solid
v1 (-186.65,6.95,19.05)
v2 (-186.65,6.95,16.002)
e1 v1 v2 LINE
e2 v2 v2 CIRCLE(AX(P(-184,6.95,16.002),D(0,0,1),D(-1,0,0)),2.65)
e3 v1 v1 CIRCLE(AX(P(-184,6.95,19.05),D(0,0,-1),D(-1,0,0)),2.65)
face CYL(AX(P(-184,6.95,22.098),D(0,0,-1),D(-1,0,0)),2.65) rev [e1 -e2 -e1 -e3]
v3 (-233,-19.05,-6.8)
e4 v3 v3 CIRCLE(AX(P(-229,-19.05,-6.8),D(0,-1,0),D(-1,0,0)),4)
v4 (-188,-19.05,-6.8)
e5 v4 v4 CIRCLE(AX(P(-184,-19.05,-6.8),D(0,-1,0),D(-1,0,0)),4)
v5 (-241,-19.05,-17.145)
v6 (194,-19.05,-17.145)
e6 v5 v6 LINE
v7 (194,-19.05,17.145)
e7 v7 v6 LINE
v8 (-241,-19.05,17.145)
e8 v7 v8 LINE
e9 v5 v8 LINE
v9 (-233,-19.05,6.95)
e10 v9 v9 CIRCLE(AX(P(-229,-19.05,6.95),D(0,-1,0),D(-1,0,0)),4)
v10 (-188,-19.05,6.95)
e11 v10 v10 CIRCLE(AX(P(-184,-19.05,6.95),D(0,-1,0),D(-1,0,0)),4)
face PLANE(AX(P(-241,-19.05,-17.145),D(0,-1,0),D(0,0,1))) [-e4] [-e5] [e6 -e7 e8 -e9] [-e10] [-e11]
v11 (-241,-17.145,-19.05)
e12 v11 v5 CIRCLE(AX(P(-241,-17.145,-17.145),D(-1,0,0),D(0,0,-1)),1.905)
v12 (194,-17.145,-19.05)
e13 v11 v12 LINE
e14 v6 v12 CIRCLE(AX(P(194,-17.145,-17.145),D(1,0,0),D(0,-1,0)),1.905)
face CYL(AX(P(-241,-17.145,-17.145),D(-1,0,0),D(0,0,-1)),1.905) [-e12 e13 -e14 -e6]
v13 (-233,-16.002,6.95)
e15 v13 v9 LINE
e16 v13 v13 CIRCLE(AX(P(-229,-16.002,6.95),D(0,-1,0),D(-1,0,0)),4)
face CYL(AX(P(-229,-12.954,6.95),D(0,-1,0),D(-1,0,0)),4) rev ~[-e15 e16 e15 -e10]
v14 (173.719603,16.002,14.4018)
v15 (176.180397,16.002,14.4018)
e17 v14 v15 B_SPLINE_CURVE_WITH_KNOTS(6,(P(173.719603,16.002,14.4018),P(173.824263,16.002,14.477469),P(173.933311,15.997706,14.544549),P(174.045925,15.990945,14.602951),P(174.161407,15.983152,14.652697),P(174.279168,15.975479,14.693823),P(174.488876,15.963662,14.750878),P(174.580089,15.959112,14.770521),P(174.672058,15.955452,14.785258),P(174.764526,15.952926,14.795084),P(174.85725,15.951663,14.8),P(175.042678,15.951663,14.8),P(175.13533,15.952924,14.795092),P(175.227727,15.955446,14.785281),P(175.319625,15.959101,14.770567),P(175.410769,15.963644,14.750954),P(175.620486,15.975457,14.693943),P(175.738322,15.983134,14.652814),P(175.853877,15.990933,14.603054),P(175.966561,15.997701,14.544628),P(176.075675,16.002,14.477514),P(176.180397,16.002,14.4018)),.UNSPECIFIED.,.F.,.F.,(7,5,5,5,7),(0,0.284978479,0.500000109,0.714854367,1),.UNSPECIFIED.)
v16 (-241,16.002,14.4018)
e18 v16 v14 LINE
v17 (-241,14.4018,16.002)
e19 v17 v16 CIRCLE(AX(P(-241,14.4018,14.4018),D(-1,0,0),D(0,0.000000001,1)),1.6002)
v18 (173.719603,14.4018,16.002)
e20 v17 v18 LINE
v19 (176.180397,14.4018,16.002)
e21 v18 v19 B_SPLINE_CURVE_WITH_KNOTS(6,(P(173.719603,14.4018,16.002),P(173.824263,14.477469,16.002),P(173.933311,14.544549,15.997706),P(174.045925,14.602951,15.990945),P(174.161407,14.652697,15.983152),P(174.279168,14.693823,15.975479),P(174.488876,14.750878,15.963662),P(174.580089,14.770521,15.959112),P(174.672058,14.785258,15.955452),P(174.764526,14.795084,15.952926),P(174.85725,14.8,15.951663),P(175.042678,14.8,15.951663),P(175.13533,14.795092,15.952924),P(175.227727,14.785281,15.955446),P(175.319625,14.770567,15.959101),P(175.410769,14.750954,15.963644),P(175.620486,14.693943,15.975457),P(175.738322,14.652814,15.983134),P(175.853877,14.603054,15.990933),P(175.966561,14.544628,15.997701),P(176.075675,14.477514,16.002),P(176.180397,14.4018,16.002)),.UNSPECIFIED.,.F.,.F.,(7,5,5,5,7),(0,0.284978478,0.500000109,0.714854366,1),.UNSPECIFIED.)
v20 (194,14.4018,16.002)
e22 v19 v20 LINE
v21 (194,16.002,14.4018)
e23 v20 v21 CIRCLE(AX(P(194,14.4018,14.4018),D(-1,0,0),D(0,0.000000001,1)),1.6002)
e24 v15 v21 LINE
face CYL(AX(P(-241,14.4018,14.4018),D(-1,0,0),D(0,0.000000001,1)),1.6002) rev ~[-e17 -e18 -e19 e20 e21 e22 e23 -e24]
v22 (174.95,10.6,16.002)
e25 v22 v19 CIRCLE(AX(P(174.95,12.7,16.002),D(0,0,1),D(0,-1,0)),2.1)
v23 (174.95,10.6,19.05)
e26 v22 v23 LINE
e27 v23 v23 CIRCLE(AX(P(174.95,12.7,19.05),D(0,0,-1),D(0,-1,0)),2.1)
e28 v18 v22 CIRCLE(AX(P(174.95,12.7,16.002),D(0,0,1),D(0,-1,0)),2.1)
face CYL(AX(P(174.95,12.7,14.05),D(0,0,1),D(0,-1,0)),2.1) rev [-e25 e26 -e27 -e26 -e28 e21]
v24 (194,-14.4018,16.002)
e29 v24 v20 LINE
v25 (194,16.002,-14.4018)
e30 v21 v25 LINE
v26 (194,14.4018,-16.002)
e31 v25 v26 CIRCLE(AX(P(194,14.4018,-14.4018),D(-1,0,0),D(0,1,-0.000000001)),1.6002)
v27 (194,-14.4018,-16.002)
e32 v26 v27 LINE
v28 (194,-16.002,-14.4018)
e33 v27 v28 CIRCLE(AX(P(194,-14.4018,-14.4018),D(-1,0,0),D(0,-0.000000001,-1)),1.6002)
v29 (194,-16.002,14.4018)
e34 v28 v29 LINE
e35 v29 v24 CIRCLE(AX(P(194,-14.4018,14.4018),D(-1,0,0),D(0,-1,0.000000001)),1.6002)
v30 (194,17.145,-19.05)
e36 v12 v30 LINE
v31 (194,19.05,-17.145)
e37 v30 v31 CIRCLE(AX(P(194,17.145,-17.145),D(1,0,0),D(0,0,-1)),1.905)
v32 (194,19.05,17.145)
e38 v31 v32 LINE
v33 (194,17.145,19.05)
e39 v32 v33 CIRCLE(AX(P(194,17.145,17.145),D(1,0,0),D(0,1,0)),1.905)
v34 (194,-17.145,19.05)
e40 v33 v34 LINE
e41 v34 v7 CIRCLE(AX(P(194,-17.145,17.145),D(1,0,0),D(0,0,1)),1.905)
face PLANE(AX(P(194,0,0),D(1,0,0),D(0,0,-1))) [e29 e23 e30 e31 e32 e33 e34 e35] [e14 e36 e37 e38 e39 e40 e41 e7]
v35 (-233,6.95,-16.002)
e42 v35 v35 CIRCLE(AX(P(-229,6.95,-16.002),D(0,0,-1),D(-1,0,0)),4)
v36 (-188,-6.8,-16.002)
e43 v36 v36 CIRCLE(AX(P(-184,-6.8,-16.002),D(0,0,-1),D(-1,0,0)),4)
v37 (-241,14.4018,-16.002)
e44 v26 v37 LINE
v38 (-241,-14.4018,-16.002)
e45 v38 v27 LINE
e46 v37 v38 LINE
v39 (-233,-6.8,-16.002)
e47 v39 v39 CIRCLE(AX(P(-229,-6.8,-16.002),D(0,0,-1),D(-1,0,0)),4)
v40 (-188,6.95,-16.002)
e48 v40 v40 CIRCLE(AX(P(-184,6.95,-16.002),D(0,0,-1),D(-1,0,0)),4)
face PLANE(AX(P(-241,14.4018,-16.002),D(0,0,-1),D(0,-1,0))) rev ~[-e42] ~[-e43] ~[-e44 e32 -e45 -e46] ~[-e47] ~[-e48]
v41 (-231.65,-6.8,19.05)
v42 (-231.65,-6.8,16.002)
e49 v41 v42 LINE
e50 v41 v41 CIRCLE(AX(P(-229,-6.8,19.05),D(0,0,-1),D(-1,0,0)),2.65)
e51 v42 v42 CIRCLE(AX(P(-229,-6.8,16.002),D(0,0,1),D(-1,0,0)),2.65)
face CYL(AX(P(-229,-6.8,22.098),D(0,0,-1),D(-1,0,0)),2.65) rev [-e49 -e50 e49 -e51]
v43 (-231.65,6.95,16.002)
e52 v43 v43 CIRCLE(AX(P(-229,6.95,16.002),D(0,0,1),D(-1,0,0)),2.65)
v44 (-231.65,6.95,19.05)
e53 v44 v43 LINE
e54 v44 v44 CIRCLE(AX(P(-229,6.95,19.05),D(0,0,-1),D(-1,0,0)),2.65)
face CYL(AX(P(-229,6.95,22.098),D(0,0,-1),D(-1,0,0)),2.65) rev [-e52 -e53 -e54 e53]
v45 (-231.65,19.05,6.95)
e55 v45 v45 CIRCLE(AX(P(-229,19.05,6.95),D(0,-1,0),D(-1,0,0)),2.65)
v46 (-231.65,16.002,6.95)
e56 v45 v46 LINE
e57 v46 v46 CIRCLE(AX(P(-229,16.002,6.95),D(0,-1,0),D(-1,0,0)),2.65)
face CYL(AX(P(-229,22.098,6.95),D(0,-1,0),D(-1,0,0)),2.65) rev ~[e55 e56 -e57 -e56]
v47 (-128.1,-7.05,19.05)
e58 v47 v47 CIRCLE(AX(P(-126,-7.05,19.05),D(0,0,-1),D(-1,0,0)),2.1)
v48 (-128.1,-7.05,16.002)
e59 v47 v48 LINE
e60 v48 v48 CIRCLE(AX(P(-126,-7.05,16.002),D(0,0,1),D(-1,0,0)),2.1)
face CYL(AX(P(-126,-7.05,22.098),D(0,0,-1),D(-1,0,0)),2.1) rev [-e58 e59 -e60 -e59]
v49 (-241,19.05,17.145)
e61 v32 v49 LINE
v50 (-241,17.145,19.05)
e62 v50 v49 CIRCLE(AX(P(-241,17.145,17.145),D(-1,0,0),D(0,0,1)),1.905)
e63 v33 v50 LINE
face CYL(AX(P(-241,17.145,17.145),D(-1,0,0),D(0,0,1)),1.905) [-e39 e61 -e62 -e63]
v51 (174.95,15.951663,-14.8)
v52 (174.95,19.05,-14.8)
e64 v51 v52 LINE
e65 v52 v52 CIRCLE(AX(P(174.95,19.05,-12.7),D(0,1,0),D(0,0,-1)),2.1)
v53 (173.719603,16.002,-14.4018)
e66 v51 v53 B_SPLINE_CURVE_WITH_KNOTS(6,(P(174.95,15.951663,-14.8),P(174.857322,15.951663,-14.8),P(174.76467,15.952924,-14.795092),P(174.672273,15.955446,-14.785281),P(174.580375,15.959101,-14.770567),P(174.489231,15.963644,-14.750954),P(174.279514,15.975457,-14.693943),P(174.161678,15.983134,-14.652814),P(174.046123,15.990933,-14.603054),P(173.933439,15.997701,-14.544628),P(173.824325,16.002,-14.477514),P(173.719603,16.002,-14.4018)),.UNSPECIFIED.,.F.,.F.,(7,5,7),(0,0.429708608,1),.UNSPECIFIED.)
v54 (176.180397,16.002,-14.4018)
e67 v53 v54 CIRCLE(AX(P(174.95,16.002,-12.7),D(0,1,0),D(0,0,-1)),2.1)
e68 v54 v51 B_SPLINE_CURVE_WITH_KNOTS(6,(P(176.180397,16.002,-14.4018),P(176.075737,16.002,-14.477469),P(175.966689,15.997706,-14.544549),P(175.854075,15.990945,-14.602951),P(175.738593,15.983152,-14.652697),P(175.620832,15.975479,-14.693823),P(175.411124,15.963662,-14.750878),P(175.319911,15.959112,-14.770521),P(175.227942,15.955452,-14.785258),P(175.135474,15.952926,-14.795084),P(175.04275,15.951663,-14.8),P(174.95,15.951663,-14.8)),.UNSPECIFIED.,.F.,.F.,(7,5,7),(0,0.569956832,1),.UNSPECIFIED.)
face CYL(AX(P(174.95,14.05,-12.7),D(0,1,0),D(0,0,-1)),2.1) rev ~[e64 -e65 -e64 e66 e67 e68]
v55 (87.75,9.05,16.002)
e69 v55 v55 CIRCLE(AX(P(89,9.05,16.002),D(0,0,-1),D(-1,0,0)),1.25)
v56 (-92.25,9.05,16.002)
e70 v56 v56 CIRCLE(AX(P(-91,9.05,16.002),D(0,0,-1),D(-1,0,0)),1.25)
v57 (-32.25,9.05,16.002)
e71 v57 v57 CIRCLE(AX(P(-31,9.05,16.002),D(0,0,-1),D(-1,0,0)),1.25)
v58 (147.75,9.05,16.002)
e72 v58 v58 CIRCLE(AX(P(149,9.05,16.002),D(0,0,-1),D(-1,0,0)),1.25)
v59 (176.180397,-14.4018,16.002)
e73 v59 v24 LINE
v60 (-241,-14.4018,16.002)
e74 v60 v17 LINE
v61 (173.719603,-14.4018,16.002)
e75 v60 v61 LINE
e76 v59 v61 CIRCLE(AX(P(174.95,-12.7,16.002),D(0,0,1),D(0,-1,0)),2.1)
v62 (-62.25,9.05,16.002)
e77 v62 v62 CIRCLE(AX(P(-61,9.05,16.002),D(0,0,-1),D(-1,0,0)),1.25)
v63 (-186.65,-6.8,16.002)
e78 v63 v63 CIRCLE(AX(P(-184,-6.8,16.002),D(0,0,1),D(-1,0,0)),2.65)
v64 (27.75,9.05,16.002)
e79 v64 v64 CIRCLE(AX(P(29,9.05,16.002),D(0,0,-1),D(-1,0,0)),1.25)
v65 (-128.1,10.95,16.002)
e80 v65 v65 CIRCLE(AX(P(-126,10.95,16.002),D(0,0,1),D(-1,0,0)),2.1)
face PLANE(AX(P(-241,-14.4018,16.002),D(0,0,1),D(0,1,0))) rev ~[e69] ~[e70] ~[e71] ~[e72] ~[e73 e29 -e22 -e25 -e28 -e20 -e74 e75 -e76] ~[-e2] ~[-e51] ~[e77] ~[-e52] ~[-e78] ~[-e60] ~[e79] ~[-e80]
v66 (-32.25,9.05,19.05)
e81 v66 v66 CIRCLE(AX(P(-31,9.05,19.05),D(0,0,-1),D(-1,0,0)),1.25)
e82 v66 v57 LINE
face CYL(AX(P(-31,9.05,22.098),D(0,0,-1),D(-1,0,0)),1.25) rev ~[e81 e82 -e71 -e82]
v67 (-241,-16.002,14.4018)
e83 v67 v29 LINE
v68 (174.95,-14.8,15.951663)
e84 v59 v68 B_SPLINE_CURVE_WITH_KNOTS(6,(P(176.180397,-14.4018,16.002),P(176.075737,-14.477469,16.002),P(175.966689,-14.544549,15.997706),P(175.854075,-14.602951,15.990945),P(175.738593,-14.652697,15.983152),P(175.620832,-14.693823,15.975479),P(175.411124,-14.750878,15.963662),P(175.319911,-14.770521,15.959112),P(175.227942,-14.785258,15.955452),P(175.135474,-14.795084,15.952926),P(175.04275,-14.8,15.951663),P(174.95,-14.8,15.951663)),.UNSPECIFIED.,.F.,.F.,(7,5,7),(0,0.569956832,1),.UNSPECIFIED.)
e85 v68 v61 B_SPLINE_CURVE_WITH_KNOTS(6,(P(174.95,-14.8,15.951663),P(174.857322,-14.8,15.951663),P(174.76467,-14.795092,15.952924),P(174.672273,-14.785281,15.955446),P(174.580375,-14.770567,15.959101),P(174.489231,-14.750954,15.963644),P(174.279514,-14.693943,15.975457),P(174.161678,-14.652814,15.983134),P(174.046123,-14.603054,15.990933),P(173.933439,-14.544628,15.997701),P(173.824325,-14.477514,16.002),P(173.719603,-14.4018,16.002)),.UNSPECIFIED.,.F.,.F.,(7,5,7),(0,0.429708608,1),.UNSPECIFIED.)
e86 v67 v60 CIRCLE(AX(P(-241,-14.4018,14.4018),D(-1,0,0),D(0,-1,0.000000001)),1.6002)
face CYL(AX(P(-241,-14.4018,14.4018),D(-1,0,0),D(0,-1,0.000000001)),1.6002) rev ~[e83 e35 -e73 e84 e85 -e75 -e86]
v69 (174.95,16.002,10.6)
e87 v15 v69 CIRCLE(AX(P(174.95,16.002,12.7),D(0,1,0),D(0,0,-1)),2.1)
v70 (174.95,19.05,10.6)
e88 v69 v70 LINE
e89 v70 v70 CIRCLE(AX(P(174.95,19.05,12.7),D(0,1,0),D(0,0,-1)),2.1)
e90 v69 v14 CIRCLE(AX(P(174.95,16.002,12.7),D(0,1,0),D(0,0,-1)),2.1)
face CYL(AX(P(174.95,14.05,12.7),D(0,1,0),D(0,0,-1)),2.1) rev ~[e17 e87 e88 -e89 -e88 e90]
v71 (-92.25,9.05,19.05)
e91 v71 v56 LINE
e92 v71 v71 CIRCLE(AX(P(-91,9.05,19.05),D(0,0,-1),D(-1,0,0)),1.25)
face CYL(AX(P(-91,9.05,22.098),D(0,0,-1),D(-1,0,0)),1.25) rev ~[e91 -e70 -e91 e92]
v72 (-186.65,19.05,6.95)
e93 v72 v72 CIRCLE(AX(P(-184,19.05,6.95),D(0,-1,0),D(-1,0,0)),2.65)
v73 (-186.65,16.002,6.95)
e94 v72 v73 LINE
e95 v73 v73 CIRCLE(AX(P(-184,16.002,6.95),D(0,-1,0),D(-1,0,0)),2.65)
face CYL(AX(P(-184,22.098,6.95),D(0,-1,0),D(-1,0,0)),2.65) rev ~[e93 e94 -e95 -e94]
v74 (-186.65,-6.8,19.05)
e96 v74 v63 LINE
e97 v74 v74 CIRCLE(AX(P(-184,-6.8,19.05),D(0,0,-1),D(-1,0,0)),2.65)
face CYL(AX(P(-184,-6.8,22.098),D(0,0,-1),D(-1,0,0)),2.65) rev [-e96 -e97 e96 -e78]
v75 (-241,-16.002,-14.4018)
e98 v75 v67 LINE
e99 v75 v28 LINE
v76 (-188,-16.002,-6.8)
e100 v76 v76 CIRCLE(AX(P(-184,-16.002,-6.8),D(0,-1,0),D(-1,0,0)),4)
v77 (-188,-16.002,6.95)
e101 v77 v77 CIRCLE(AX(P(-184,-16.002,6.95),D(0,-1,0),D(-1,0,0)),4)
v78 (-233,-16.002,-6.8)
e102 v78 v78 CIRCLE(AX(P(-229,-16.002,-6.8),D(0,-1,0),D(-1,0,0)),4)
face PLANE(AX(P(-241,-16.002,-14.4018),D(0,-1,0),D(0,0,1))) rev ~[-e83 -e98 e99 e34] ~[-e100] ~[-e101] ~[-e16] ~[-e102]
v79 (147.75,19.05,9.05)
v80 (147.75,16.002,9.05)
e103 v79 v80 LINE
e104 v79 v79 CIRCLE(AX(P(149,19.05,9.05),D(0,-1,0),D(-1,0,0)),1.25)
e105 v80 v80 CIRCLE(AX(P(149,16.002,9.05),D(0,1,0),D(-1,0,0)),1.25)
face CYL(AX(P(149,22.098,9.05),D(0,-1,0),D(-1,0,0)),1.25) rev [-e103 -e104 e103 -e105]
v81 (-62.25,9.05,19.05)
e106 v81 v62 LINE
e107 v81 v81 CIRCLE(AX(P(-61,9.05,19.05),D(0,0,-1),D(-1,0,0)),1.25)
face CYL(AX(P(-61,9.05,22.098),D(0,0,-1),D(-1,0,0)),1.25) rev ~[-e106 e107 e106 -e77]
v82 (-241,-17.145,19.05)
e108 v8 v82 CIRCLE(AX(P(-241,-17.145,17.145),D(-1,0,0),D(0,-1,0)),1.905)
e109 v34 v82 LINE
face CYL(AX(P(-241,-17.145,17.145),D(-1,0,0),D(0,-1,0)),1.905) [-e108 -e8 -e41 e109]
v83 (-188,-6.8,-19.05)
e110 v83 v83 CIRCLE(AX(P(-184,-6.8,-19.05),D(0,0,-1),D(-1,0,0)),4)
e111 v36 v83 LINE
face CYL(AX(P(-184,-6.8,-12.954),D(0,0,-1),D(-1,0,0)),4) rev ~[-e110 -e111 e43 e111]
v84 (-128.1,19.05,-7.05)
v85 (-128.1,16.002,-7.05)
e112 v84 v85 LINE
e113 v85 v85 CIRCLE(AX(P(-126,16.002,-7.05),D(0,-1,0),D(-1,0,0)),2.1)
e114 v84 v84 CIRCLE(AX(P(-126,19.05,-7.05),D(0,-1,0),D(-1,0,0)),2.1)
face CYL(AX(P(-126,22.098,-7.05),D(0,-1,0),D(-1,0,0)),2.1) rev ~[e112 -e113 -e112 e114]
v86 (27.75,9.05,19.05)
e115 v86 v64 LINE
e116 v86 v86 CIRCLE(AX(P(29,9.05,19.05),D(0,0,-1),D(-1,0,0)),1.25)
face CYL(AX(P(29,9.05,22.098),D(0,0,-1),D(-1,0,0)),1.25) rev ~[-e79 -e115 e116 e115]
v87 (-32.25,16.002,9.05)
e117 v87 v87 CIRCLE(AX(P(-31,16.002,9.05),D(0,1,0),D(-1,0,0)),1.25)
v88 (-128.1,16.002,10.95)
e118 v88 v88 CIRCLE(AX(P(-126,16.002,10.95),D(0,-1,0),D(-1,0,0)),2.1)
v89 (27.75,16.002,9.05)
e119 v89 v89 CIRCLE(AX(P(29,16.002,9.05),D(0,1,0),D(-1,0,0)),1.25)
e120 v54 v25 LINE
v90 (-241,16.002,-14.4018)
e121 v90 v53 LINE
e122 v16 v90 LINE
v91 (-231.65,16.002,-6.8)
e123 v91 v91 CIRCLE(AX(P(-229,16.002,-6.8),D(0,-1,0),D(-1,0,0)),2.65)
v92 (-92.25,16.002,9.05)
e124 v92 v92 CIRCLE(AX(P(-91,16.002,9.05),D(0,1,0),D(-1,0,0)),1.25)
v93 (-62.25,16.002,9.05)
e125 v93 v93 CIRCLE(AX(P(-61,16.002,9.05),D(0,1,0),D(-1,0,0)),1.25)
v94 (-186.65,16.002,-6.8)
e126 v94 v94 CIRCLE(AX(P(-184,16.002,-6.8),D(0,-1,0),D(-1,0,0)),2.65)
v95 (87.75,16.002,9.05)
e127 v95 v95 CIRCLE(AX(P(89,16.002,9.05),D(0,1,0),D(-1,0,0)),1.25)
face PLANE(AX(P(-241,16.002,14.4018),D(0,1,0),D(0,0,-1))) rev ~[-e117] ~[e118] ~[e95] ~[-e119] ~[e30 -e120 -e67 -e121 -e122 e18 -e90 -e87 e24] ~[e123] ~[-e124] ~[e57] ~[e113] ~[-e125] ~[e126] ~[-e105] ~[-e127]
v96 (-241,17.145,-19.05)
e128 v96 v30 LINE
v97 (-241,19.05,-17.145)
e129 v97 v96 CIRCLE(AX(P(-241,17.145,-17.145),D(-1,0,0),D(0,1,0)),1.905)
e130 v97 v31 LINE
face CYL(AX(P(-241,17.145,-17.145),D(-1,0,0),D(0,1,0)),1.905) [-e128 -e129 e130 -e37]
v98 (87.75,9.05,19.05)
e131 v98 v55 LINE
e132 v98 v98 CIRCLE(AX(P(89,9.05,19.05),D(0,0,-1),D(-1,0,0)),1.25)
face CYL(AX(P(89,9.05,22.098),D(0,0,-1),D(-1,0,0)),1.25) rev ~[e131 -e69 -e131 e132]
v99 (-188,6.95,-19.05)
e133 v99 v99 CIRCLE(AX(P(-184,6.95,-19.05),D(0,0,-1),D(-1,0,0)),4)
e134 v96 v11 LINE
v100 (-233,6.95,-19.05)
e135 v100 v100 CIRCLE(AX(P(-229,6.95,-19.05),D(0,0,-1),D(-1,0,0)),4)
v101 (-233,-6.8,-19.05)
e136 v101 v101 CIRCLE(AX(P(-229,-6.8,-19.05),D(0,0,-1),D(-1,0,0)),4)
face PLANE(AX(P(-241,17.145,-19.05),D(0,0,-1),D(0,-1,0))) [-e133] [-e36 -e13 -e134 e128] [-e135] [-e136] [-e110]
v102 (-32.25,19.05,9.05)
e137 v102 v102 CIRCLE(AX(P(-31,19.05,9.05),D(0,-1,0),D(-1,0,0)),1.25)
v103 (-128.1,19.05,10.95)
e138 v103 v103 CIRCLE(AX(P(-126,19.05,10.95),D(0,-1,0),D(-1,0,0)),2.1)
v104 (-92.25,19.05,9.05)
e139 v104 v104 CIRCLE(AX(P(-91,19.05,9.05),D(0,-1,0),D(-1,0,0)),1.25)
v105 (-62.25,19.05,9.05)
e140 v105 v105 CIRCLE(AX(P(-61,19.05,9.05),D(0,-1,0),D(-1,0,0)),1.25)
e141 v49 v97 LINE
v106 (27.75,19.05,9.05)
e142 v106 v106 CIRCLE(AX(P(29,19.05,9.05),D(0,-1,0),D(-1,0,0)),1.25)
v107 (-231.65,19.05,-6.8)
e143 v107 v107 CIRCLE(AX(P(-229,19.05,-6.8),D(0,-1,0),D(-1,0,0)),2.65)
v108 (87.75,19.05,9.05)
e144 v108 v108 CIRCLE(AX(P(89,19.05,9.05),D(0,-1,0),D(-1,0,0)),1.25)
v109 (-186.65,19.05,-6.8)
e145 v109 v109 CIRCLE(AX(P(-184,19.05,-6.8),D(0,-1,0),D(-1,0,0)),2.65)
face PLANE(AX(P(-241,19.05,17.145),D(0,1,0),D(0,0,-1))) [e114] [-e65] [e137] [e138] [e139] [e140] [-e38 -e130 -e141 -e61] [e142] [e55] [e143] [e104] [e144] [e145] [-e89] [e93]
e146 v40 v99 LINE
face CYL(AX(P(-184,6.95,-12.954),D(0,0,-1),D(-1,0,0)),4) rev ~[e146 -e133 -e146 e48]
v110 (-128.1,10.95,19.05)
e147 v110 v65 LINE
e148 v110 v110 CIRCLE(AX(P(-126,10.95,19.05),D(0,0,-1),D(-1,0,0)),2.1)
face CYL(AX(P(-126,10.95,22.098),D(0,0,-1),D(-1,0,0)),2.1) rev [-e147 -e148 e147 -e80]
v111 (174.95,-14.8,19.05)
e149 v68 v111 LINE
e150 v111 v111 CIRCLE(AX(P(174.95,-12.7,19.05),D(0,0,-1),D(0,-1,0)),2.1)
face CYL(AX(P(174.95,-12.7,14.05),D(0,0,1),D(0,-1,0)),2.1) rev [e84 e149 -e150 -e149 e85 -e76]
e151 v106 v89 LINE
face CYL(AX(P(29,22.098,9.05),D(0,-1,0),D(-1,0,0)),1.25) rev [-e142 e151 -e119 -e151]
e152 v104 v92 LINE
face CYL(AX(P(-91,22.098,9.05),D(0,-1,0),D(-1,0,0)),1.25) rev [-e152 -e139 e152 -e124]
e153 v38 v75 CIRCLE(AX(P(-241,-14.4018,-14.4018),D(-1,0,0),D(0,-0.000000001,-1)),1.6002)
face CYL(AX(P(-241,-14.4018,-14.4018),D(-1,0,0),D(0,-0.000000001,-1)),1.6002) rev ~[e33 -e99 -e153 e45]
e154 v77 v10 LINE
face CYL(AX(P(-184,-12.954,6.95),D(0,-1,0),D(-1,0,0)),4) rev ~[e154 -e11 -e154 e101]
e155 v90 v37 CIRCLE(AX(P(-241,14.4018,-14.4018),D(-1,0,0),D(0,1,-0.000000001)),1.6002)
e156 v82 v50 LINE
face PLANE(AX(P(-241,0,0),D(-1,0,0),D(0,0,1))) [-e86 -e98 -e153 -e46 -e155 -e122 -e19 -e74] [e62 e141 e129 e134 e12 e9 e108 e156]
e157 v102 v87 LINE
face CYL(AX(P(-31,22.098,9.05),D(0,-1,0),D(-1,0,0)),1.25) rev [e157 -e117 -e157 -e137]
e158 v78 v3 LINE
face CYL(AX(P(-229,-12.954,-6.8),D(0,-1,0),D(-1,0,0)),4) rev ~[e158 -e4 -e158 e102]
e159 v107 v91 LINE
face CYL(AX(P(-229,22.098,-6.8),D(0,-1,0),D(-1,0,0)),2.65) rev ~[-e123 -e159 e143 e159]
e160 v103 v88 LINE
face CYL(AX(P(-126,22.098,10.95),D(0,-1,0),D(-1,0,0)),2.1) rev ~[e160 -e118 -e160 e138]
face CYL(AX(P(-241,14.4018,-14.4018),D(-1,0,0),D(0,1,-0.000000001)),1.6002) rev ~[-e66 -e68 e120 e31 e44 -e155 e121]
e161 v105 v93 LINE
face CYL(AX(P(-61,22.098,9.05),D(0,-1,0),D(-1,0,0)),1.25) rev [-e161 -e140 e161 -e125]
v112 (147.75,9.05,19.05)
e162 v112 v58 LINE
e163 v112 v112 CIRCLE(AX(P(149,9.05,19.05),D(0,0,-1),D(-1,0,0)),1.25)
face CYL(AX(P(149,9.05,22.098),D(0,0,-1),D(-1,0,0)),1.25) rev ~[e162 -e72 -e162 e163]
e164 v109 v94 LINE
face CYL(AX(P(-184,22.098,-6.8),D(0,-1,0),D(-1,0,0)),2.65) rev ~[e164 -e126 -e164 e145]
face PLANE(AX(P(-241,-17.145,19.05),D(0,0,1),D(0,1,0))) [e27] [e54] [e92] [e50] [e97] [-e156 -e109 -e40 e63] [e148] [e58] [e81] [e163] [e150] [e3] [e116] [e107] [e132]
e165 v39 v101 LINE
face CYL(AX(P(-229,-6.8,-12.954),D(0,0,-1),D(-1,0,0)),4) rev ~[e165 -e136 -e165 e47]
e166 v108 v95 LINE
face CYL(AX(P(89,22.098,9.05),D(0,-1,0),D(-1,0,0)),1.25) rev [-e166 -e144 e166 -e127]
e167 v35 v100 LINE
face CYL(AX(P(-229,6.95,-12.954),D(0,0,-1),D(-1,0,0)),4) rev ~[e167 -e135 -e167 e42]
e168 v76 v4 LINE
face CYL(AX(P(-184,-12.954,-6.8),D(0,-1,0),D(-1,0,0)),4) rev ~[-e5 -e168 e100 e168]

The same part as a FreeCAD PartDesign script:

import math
import FreeCAD as App
import Part
import Sketcher
Q = App.Units.Quantity

doc = App.newDocument("Part")
params = doc.addObject("Spreadsheet::Sheet", "Params")
for row, (alias, value) in enumerate([
    ("sketch1_width", "34.29 mm"),
    ("pad1_length", "194 mm"),
    ("pad1_length2", "194 mm"),
    ("sketch2_diameter", "4.2 mm"),
    ("hole_diameter", "4.2 mm"),
    ("hole_depth", "3.048 mm"),
    ("sketch3_diameter", "2.5 mm"),
    ("hole2_diameter", "2.5 mm"),
    ("hole2_depth", "3.048 mm"),
    ("sketch4_height", "5 mm"),
    ("sketch4_width", "2.1 mm"),
    ("groove_angle", "360 deg"),
    ("linearpattern_pitch", "25.4 mm"),
    ("sketch5_width", "5 mm"),
    ("sketch5_height", "2.1 mm"),
    ("groove2_angle", "360 deg"),
    ("sketch6_width", "34.29 mm"),
    ("pad2_length", "40 mm"),
    ("sketch7_diameter", "5.3 mm"),
    ("hole3_diameter", "5.3 mm"),
    ("hole3_depth", "3.048 mm"),
    ("sketch8_width", "34.29 mm"),
    ("pad3_length", "7 mm"),
    ("sketch9_diameter", "8 mm"),
    ("hole4_diameter", "8 mm"),
    ("hole4_depth", "3.048 mm"),
    ("sketch10_diameter", "8 mm"),
    ("hole5_diameter", "8 mm"),
    ("hole5_depth", "3.048 mm"),
], start=1):
    params.set(f"A{row}", alias)
    params.set(f"B{row}", "=" + value)
    params.setAlias(f"B{row}", alias)

body = doc.addObject("PartDesign::Body", "Body")

# Sketch on YZ plane
sketch1 = body.newObject("Sketcher::SketchObject", "Sketch")
sketch1.AttachmentSupport = (doc.getObject("YZ_Plane"), [""])
sketch1.MapMode = "FlatFace"
sketch1.addGeometry([
    Part.LineSegment(App.Vector(-17.1, -19.1, 0), App.Vector(17.1, -19.1, 0)),  # 0
    Part.ArcOfCircle(Part.Circle(App.Vector(17.1, -17.1, 0), App.Vector(0, 0, 1), 1.9), math.radians(-90), math.radians(0)),  # 1
    Part.LineSegment(App.Vector(19.1, -17.1, 0), App.Vector(19.1, 17.1, 0)),  # 2
    Part.ArcOfCircle(Part.Circle(App.Vector(17.1, 17.1, 0), App.Vector(0, 0, 1), 1.9), math.radians(0), math.radians(90)),  # 3
    Part.LineSegment(App.Vector(17.1, 19.1, 0), App.Vector(-17.1, 19.1, 0)),  # 4
    Part.ArcOfCircle(Part.Circle(App.Vector(-17.1, 17.1, 0), App.Vector(0, 0, 1), 1.9), math.radians(90), math.radians(180)),  # 5
    Part.LineSegment(App.Vector(-19.1, 17.1, 0), App.Vector(-19.1, -17.1, 0)),  # 6
    Part.ArcOfCircle(Part.Circle(App.Vector(-17.1, -17.1, 0), App.Vector(0, 0, 1), 1.9), math.radians(-180), math.radians(-90)),  # 7
    Part.ArcOfCircle(Part.Circle(App.Vector(14.4, -14.4, 0), App.Vector(0, 0, 1), 1.6), math.radians(-90), math.radians(0)),  # 8
    Part.LineSegment(App.Vector(14.4, -16, 0), App.Vector(-14.4, -16, 0)),  # 9
    Part.ArcOfCircle(Part.Circle(App.Vector(-14.4, -14.4, 0), App.Vector(0, 0, 1), 1.6), math.radians(-180), math.radians(-90)),  # 10
    Part.LineSegment(App.Vector(-16, -14.4, 0), App.Vector(-16, 14.4, 0)),  # 11
    Part.ArcOfCircle(Part.Circle(App.Vector(-14.4, 14.4, 0), App.Vector(0, 0, 1), 1.6), math.radians(90), math.radians(180)),  # 12
    Part.LineSegment(App.Vector(-14.4, 16, 0), App.Vector(14.4, 16, 0)),  # 13
    Part.ArcOfCircle(Part.Circle(App.Vector(14.4, 14.4, 0), App.Vector(0, 0, 1), 1.6), math.radians(0), math.radians(90)),  # 14
    Part.LineSegment(App.Vector(16, 14.4, 0), App.Vector(16, -14.4, 0)),  # 15
], False)
sketch1.addConstraint([
    Sketcher.Constraint("Tangent", 0, 2, 1, 1),
    Sketcher.Constraint("Tangent", 1, 2, 2, 1),
    Sketcher.Constraint("Tangent", 2, 2, 3, 1),
    Sketcher.Constraint("Tangent", 3, 2, 4, 1),
    Sketcher.Constraint("Tangent", 4, 2, 5, 1),
    Sketcher.Constraint("Tangent", 5, 2, 6, 1),
    Sketcher.Constraint("Tangent", 6, 2, 7, 1),
    Sketcher.Constraint("Tangent", 7, 2, 0, 1),
    Sketcher.Constraint("Tangent", 8, 1, 9, 1),
    Sketcher.Constraint("Tangent", 9, 2, 10, 2),
    Sketcher.Constraint("Tangent", 10, 1, 11, 1),
    Sketcher.Constraint("Tangent", 11, 2, 12, 2),
    Sketcher.Constraint("Tangent", 12, 1, 13, 1),
    Sketcher.Constraint("Tangent", 13, 2, 14, 2),
    Sketcher.Constraint("Tangent", 14, 1, 15, 1),
    Sketcher.Constraint("Tangent", 15, 2, 8, 2),
    Sketcher.Constraint("Horizontal", 0),
    Sketcher.Constraint("Vertical", 2),
    Sketcher.Constraint("Horizontal", 4),
    Sketcher.Constraint("Vertical", 6),
    Sketcher.Constraint("Horizontal", 9),
    Sketcher.Constraint("Vertical", 11),
    Sketcher.Constraint("Horizontal", 13),
    Sketcher.Constraint("Vertical", 15),
    Sketcher.Constraint("Equal", 1, 3),
    Sketcher.Constraint("Equal", 3, 5),
    Sketcher.Constraint("Equal", 5, 7),
    Sketcher.Constraint("Equal", 8, 10),
    Sketcher.Constraint("Equal", 10, 12),
    Sketcher.Constraint("Equal", 12, 14),
    Sketcher.Constraint("Symmetric", 1, 3, 5, 3, -1, 1),
    Sketcher.Constraint("Symmetric", 8, 3, 12, 3, -1, 1),
    Sketcher.Constraint("Equal", 4, 2),
    Sketcher.Constraint("Equal", 13, 11),
    Sketcher.Constraint("Radius", 1, 1.905),
    Sketcher.Constraint("DistanceX", 0, 1, 0, 2, 34.29),
    Sketcher.Constraint("Radius", 8, 1.6002),
    Sketcher.Constraint("DistanceX", 9, 2, 9, 1, 28.8036),
])
sketch1.setExpression("Constraints[35]", "Params.sketch1_width")
pad1 = body.newObject("PartDesign::Pad", "Pad")
pad1.Profile = sketch1
pad1.Type = "TwoLengths"
pad1.setExpression("Length", "Params.pad1_length")
pad1.setExpression("Length2", "Params.pad1_length2")

# Sketch on XZ plane
sketch2 = body.newObject("Sketcher::SketchObject", "Sketch001")
sketch2.AttachmentSupport = (doc.getObject("XZ_Plane"), [""])
sketch2.MapMode = "FlatFace"
sketch2.AttachmentOffset = App.Placement(App.Vector(0, 0, -19.05), App.Rotation())
sketch2.addGeometry([
    Part.Circle(App.Vector(-126, -7, 0), App.Vector(0, 0, 1), 2.1),
    Part.Circle(App.Vector(-126, 10.9, 0), App.Vector(0, 0, 1), 2.1),
], False)
sketch2.addConstraint([
    Sketcher.Constraint("Equal", 0, 1),
    Sketcher.Constraint("Vertical", 0, 3, 1, 3),
    Sketcher.Constraint("Diameter", 0, 4.2),
    Sketcher.Constraint("DistanceX", 0, 3, -1, 1, 126.0),
    Sketcher.Constraint("DistanceY", 0, 3, 1, 3, 18.0),
    Sketcher.Constraint("DistanceY", 0, 3, -1, 1, 7.05),
])
sketch2.setExpression("Constraints[2]", "Params.sketch2_diameter")
doc.recompute()
hole = body.newObject("PartDesign::Hole", "Hole")
hole.Profile = sketch2
hole.ThreadType = "None"
hole.setExpression("Diameter", "Params.hole_diameter")
hole.DepthType = "Dimension"
hole.setExpression("Depth", "Params.hole_depth")
hole.DrillPoint = "Flat"
hole.Reversed = True

# Sketch on XY plane
sketch3 = body.newObject("Sketcher::SketchObject", "Sketch002")
sketch3.AttachmentSupport = (doc.getObject("XY_Plane"), [""])
sketch3.MapMode = "FlatFace"
sketch3.AttachmentOffset = App.Placement(App.Vector(0, 0, 19.05), App.Rotation())
sketch3.addGeometry([
    Part.Circle(App.Vector(149, 9.1, 0), App.Vector(0, 0, 1), 1.2),  # 0
    Part.Circle(App.Vector(89, 9.1, 0), App.Vector(0, 0, 1), 1.2),  # 1
    Part.Circle(App.Vector(29, 9.1, 0), App.Vector(0, 0, 1), 1.2),  # 2
    Part.Circle(App.Vector(-31, 9.1, 0), App.Vector(0, 0, 1), 1.2),  # 3
    Part.Circle(App.Vector(-91, 9.1, 0), App.Vector(0, 0, 1), 1.2),  # 4
    Part.Circle(App.Vector(-61, 9.1, 0), App.Vector(0, 0, 1), 1.2),  # 5
], False)
sketch3.addConstraint([
    Sketcher.Constraint("Equal", 0, 1),
    Sketcher.Constraint("Equal", 1, 2),
    Sketcher.Constraint("Equal", 2, 3),
    Sketcher.Constraint("Equal", 3, 4),
    Sketcher.Constraint("Equal", 4, 5),
    Sketcher.Constraint("Horizontal", 0, 3, 1, 3),
    Sketcher.Constraint("Horizontal", 1, 3, 2, 3),
    Sketcher.Constraint("Horizontal", 2, 3, 3, 3),
    Sketcher.Constraint("Horizontal", 3, 3, 4, 3),
    Sketcher.Constraint("Horizontal", 4, 3, 5, 3),
    Sketcher.Constraint("Diameter", 0, 2.5),
    Sketcher.Constraint("DistanceX", -1, 1, 0, 3, 149.0),
    Sketcher.Constraint("DistanceX", -1, 1, 1, 3, 89.0),
    Sketcher.Constraint("DistanceX", -1, 1, 2, 3, 29.0),
    Sketcher.Constraint("DistanceX", 3, 3, -1, 1, 31.0),
    Sketcher.Constraint("DistanceX", 4, 3, -1, 1, 91.0),
    Sketcher.Constraint("DistanceX", 5, 3, -1, 1, 61.0),
    Sketcher.Constraint("DistanceY", -1, 1, 0, 3, 9.05),
])
sketch3.setExpression("Constraints[10]", "Params.sketch3_diameter")
doc.recompute()
hole2 = body.newObject("PartDesign::Hole", "Hole001")
hole2.Profile = sketch3
hole2.ThreadType = "None"
hole2.setExpression("Diameter", "Params.hole2_diameter")
hole2.DepthType = "Dimension"
hole2.setExpression("Depth", "Params.hole2_depth")
hole2.DrillPoint = "Flat"

# Sketch on YZ plane
sketch4 = body.newObject("Sketcher::SketchObject", "Sketch003")
sketch4.AttachmentSupport = (doc.getObject("YZ_Plane"), [""])
sketch4.MapMode = "FlatFace"
sketch4.AttachmentOffset = App.Placement(App.Vector(0, 0, 174.95), App.Rotation())
sketch4.addGeometry([
    Part.LineSegment(App.Vector(12.7, 12.8, 0), App.Vector(12.7, 19.1, 0)),
    Part.LineSegment(App.Vector(12.7, 19.1, 0), App.Vector(10.6, 19.1, 0)),
    Part.LineSegment(App.Vector(10.6, 19.1, 0), App.Vector(10.6, 14.1, 0)),
    Part.LineSegment(App.Vector(10.6, 14.1, 0), App.Vector(12.7, 12.8, 0)),
], False)
sketch4.addGeometry(Part.LineSegment(App.Vector(12.7, 19.1, 0), App.Vector(12.7, 12.8, 0)), True)  # axis
sketch4.addConstraint([
    Sketcher.Constraint("Coincident", 0, 2, 1, 1),
    Sketcher.Constraint("Coincident", 1, 2, 2, 1),
    Sketcher.Constraint("Coincident", 2, 2, 3, 1),
    Sketcher.Constraint("Coincident", 3, 2, 0, 1),
    Sketcher.Constraint("Vertical", 0),
    Sketcher.Constraint("Horizontal", 1),
    Sketcher.Constraint("Vertical", 2),
    Sketcher.Constraint("Vertical", 4),
    Sketcher.Constraint("Coincident", 4, 1, 0, 2),
    Sketcher.Constraint("Equal", 0, 4),
    Sketcher.Constraint("DistanceY", 2, 2, 2, 1, 5.0),
    Sketcher.Constraint("Angle", 3, Q("-31 deg")),
    Sketcher.Constraint("DistanceX", 1, 2, 1, 1, 2.1),
    Sketcher.Constraint("DistanceX", -1, 1, 0, 2, 12.7),
    Sketcher.Constraint("DistanceY", -1, 1, 0, 2, 19.05),
])
sketch4.setExpression("Constraints[10]", "Params.sketch4_height")
sketch4.setExpression("Constraints[12]", "Params.sketch4_width")
groove = body.newObject("PartDesign::Groove", "Groove")
groove.Profile = sketch4
groove.ReferenceAxis = (sketch4, ["Axis0"])
groove.setExpression("Angle", "Params.groove_angle")
doc.recompute()

linearpattern = body.newObject("PartDesign::LinearPattern", "LinearPattern")
linearpattern.Originals = [groove]
linearpattern.Direction = (doc.getObject("Y_Axis"), [""])
linearpattern.Mode = "offset"
linearpattern.setExpression("Offset", "Params.linearpattern_pitch")
linearpattern.Occurrences = 2
linearpattern.Reversed = True
body.Tip = linearpattern
doc.recompute()

datumplane = body.newObject("PartDesign::Plane", "DatumPlane")
datumplane.Placement = App.Placement(App.Vector(0, 0, 0), App.Rotation(App.Vector(0, 0.707106781, 0.707106781), App.Vector(-1, 0, 0), App.Vector(0, -0.707106781, 0.707106781), "ZXY"))
mirrored = body.newObject("PartDesign::Mirrored", "Mirrored")
mirrored.Originals = [hole, hole2, groove]
mirrored.MirrorPlane = (datumplane, [""])
body.Tip = mirrored

# Sketch on YZ plane
sketch5 = body.newObject("Sketcher::SketchObject", "Sketch004")
sketch5.AttachmentSupport = (doc.getObject("YZ_Plane"), [""])
sketch5.MapMode = "FlatFace"
sketch5.AttachmentOffset = App.Placement(App.Vector(0, 0, 174.95), App.Rotation())
sketch5.addGeometry([
    Part.LineSegment(App.Vector(19.1, -12.7, 0), App.Vector(12.8, -12.7, 0)),
    Part.LineSegment(App.Vector(12.8, -12.7, 0), App.Vector(14.1, -14.8, 0)),
    Part.LineSegment(App.Vector(14.1, -14.8, 0), App.Vector(19.1, -14.8, 0)),
    Part.LineSegment(App.Vector(19.1, -14.8, 0), App.Vector(19.1, -12.7, 0)),
], False)
sketch5.addGeometry(Part.LineSegment(App.Vector(12.8, -12.7, 0), App.Vector(19.1, -12.7, 0)), True)  # axis
sketch5.addConstraint([
    Sketcher.Constraint("Coincident", 0, 2, 1, 1),
    Sketcher.Constraint("Coincident", 1, 2, 2, 1),
    Sketcher.Constraint("Coincident", 2, 2, 3, 1),
    Sketcher.Constraint("Coincident", 3, 2, 0, 1),
    Sketcher.Constraint("Horizontal", 0),
    Sketcher.Constraint("Horizontal", 2),
    Sketcher.Constraint("Vertical", 3),
    Sketcher.Constraint("Horizontal", 4),
    Sketcher.Constraint("Coincident", 4, 1, 0, 2),
    Sketcher.Constraint("Vertical", 2, 2, 4, 2),
    Sketcher.Constraint("DistanceX", 2, 1, 2, 2, 5.0),
    Sketcher.Constraint("Angle", 1, Q("-59 deg")),
    Sketcher.Constraint("DistanceY", 3, 1, 3, 2, 2.1),
    Sketcher.Constraint("DistanceY", 0, 2, -1, 1, 12.7),
    Sketcher.Constraint("DistanceX", -1, 1, 1, 2, 14.05),
])
sketch5.setExpression("Constraints[10]", "Params.sketch5_width")
sketch5.setExpression("Constraints[12]", "Params.sketch5_height")
groove2 = body.newObject("PartDesign::Groove", "Groove001")
groove2.Profile = sketch5
groove2.ReferenceAxis = (sketch5, ["Axis0"])
groove2.setExpression("Angle", "Params.groove2_angle")

# Sketch on YZ plane
sketch6 = body.newObject("Sketcher::SketchObject", "Sketch005")
sketch6.AttachmentSupport = (doc.getObject("YZ_Plane"), [""])
sketch6.MapMode = "FlatFace"
sketch6.AttachmentOffset = App.Placement(App.Vector(0, 0, -234), App.Rotation())
sketch6.addGeometry([
    Part.LineSegment(App.Vector(-19.1, -17.1, 0), App.Vector(-19.1, 17.1, 0)),  # 0
    Part.ArcOfCircle(Part.Circle(App.Vector(-17.1, 17.1, 0), App.Vector(0, 0, 1), 1.9), math.radians(90), math.radians(180)),  # 1
    Part.LineSegment(App.Vector(-17.1, 19.1, 0), App.Vector(17.1, 19.1, 0)),  # 2
    Part.ArcOfCircle(Part.Circle(App.Vector(17.1, 17.1, 0), App.Vector(0, 0, 1), 1.9), math.radians(0), math.radians(90)),  # 3
    Part.LineSegment(App.Vector(19.1, 17.1, 0), App.Vector(19.1, -17.1, 0)),  # 4
    Part.ArcOfCircle(Part.Circle(App.Vector(17.1, -17.1, 0), App.Vector(0, 0, 1), 1.9), math.radians(-90), math.radians(0)),  # 5
    Part.LineSegment(App.Vector(17.1, -19.1, 0), App.Vector(-17.1, -19.1, 0)),  # 6
    Part.ArcOfCircle(Part.Circle(App.Vector(-17.1, -17.1, 0), App.Vector(0, 0, 1), 1.9), math.radians(-180), math.radians(-90)),  # 7
    Part.LineSegment(App.Vector(-14.4, -16, 0), App.Vector(14.4, -16, 0)),  # 8
    Part.ArcOfCircle(Part.Circle(App.Vector(14.4, -14.4, 0), App.Vector(0, 0, 1), 1.6), math.radians(-90), math.radians(0)),  # 9
    Part.LineSegment(App.Vector(16, -14.4, 0), App.Vector(16, 14.4, 0)),  # 10
    Part.ArcOfCircle(Part.Circle(App.Vector(14.4, 14.4, 0), App.Vector(0, 0, 1), 1.6), math.radians(0), math.radians(90)),  # 11
    Part.LineSegment(App.Vector(14.4, 16, 0), App.Vector(-14.4, 16, 0)),  # 12
    Part.ArcOfCircle(Part.Circle(App.Vector(-14.4, 14.4, 0), App.Vector(0, 0, 1), 1.6), math.radians(90), math.radians(180)),  # 13
    Part.LineSegment(App.Vector(-16, 14.4, 0), App.Vector(-16, -14.4, 0)),  # 14
    Part.ArcOfCircle(Part.Circle(App.Vector(-14.4, -14.4, 0), App.Vector(0, 0, 1), 1.6), math.radians(-180), math.radians(-90)),  # 15
], False)
sketch6.addConstraint([
    Sketcher.Constraint("Tangent", 0, 2, 1, 2),
    Sketcher.Constraint("Tangent", 1, 1, 2, 1),
    Sketcher.Constraint("Tangent", 2, 2, 3, 2),
    Sketcher.Constraint("Tangent", 3, 1, 4, 1),
    Sketcher.Constraint("Tangent", 4, 2, 5, 2),
    Sketcher.Constraint("Tangent", 5, 1, 6, 1),
    Sketcher.Constraint("Tangent", 6, 2, 7, 2),
    Sketcher.Constraint("Tangent", 7, 1, 0, 1),
    Sketcher.Constraint("Tangent", 8, 2, 9, 1),
    Sketcher.Constraint("Tangent", 9, 2, 10, 1),
    Sketcher.Constraint("Tangent", 10, 2, 11, 1),
    Sketcher.Constraint("Tangent", 11, 2, 12, 1),
    Sketcher.Constraint("Tangent", 12, 2, 13, 1),
    Sketcher.Constraint("Tangent", 13, 2, 14, 1),
    Sketcher.Constraint("Tangent", 14, 2, 15, 1),
    Sketcher.Constraint("Tangent", 15, 2, 8, 1),
    Sketcher.Constraint("Vertical", 0),
    Sketcher.Constraint("Horizontal", 2),
    Sketcher.Constraint("Vertical", 4),
    Sketcher.Constraint("Horizontal", 6),
    Sketcher.Constraint("Horizontal", 8),
    Sketcher.Constraint("Vertical", 10),
    Sketcher.Constraint("Horizontal", 12),
    Sketcher.Constraint("Vertical", 14),
    Sketcher.Constraint("Equal", 1, 3),
    Sketcher.Constraint("Equal", 3, 5),
    Sketcher.Constraint("Equal", 5, 7),
    Sketcher.Constraint("Equal", 9, 11),
    Sketcher.Constraint("Equal", 11, 13),
    Sketcher.Constraint("Equal", 13, 15),
    Sketcher.Constraint("Symmetric", 1, 3, 5, 3, -1, 1),
    Sketcher.Constraint("Symmetric", 9, 3, 13, 3, -1, 1),
    Sketcher.Constraint("Equal", 6, 0),
    Sketcher.Constraint("Equal", 12, 10),
    Sketcher.Constraint("Radius", 1, 1.905),
    Sketcher.Constraint("DistanceX", 2, 1, 2, 2, 34.29),
    Sketcher.Constraint("Radius", 9, 1.6002),
    Sketcher.Constraint("DistanceX", 8, 1, 8, 2, 28.8036),
])
sketch6.setExpression("Constraints[35]", "Params.sketch6_width")
pad2 = body.newObject("PartDesign::Pad", "Pad001")
pad2.Profile = sketch6
pad2.setExpression("Length", "Params.pad2_length")

# Sketch on XZ plane
sketch7 = body.newObject("Sketcher::SketchObject", "Sketch006")
sketch7.AttachmentSupport = (doc.getObject("XZ_Plane"), [""])
sketch7.MapMode = "FlatFace"
sketch7.AttachmentOffset = App.Placement(App.Vector(0, 0, -19.05), App.Rotation())
sketch7.addGeometry([
    Part.Circle(App.Vector(-229, -6.8, 0), App.Vector(0, 0, 1), 2.6),
    Part.Circle(App.Vector(-229, 7, 0), App.Vector(0, 0, 1), 2.6),
    Part.Circle(App.Vector(-184, 7, 0), App.Vector(0, 0, 1), 2.6),
    Part.Circle(App.Vector(-184, -6.8, 0), App.Vector(0, 0, 1), 2.6),
], False)
sketch7.addConstraint([
    Sketcher.Constraint("Equal", 0, 1),
    Sketcher.Constraint("Equal", 1, 2),
    Sketcher.Constraint("Equal", 2, 3),
    Sketcher.Constraint("Horizontal", 1, 3, 2, 3),
    Sketcher.Constraint("Horizontal", 0, 3, 3, 3),
    Sketcher.Constraint("Vertical", 0, 3, 1, 3),
    Sketcher.Constraint("Vertical", 2, 3, 3, 3),
    Sketcher.Constraint("Diameter", 0, 5.3),
    Sketcher.Constraint("DistanceX", 0, 3, -1, 1, 229.0),
    Sketcher.Constraint("DistanceX", 2, 3, -1, 1, 184.0),
    Sketcher.Constraint("DistanceY", 0, 3, -1, 1, 6.8),
    Sketcher.Constraint("DistanceY", -1, 1, 1, 3, 6.95),
])
sketch7.setExpression("Constraints[7]", "Params.sketch7_diameter")
doc.recompute()
hole3 = body.newObject("PartDesign::Hole", "Hole002")
hole3.Profile = sketch7
hole3.ThreadType = "None"
hole3.setExpression("Diameter", "Params.hole3_diameter")
hole3.DepthType = "Dimension"
hole3.setExpression("Depth", "Params.hole3_depth")
hole3.DrillPoint = "Flat"
hole3.Reversed = True
doc.recompute()

datumplane2 = body.newObject("PartDesign::Plane", "DatumPlane001")
datumplane2.Placement = App.Placement(App.Vector(0, 0, 0), App.Rotation(App.Vector(0, 0.707106781, 0.707106781), App.Vector(-1, 0, 0), App.Vector(0, -0.707106781, 0.707106781), "ZXY"))
mirrored2 = body.newObject("PartDesign::Mirrored", "Mirrored001")
mirrored2.Originals = [hole3]
mirrored2.MirrorPlane = (datumplane2, [""])
body.Tip = mirrored2

# Sketch on YZ plane
sketch8 = body.newObject("Sketcher::SketchObject", "Sketch007")
sketch8.AttachmentSupport = (doc.getObject("YZ_Plane"), [""])
sketch8.MapMode = "FlatFace"
sketch8.AttachmentOffset = App.Placement(App.Vector(0, 0, -241), App.Rotation())
sketch8.addGeometry([
    Part.LineSegment(App.Vector(-19.1, -17.1, 0), App.Vector(-19.1, 17.1, 0)),  # 0
    Part.ArcOfCircle(Part.Circle(App.Vector(-17.1, 17.1, 0), App.Vector(0, 0, 1), 1.9), math.radians(90), math.radians(180)),  # 1
    Part.LineSegment(App.Vector(-17.1, 19.1, 0), App.Vector(17.1, 19.1, 0)),  # 2
    Part.ArcOfCircle(Part.Circle(App.Vector(17.1, 17.1, 0), App.Vector(0, 0, 1), 1.9), math.radians(0), math.radians(90)),  # 3
    Part.LineSegment(App.Vector(19.1, 17.1, 0), App.Vector(19.1, -17.1, 0)),  # 4
    Part.ArcOfCircle(Part.Circle(App.Vector(17.1, -17.1, 0), App.Vector(0, 0, 1), 1.9), math.radians(-90), math.radians(0)),  # 5
    Part.LineSegment(App.Vector(17.1, -19.1, 0), App.Vector(-17.1, -19.1, 0)),  # 6
    Part.ArcOfCircle(Part.Circle(App.Vector(-17.1, -17.1, 0), App.Vector(0, 0, 1), 1.9), math.radians(-180), math.radians(-90)),  # 7
    Part.LineSegment(App.Vector(-14.4, -16, 0), App.Vector(14.4, -16, 0)),  # 8
    Part.ArcOfCircle(Part.Circle(App.Vector(14.4, -14.4, 0), App.Vector(0, 0, 1), 1.6), math.radians(-90), math.radians(0)),  # 9
    Part.LineSegment(App.Vector(16, -14.4, 0), App.Vector(16, 14.4, 0)),  # 10
    Part.ArcOfCircle(Part.Circle(App.Vector(14.4, 14.4, 0), App.Vector(0, 0, 1), 1.6), math.radians(0), math.radians(90)),  # 11
    Part.LineSegment(App.Vector(14.4, 16, 0), App.Vector(-14.4, 16, 0)),  # 12
    Part.ArcOfCircle(Part.Circle(App.Vector(-14.4, 14.4, 0), App.Vector(0, 0, 1), 1.6), math.radians(90), math.radians(180)),  # 13
    Part.LineSegment(App.Vector(-16, 14.4, 0), App.Vector(-16, -14.4, 0)),  # 14
    Part.ArcOfCircle(Part.Circle(App.Vector(-14.4, -14.4, 0), App.Vector(0, 0, 1), 1.6), math.radians(-180), math.radians(-90)),  # 15
], False)
sketch8.addConstraint([
    Sketcher.Constraint("Tangent", 0, 2, 1, 2),
    Sketcher.Constraint("Tangent", 1, 1, 2, 1),
    Sketcher.Constraint("Tangent", 2, 2, 3, 2),
    Sketcher.Constraint("Tangent", 3, 1, 4, 1),
    Sketcher.Constraint("Tangent", 4, 2, 5, 2),
    Sketcher.Constraint("Tangent", 5, 1, 6, 1),
    Sketcher.Constraint("Tangent", 6, 2, 7, 2),
    Sketcher.Constraint("Tangent", 7, 1, 0, 1),
    Sketcher.Constraint("Tangent", 8, 2, 9, 1),
    Sketcher.Constraint("Tangent", 9, 2, 10, 1),
    Sketcher.Constraint("Tangent", 10, 2, 11, 1),
    Sketcher.Constraint("Tangent", 11, 2, 12, 1),
    Sketcher.Constraint("Tangent", 12, 2, 13, 1),
    Sketcher.Constraint("Tangent", 13, 2, 14, 1),
    Sketcher.Constraint("Tangent", 14, 2, 15, 1),
    Sketcher.Constraint("Tangent", 15, 2, 8, 1),
    Sketcher.Constraint("Vertical", 0),
    Sketcher.Constraint("Horizontal", 2),
    Sketcher.Constraint("Vertical", 4),
    Sketcher.Constraint("Horizontal", 6),
    Sketcher.Constraint("Horizontal", 8),
    Sketcher.Constraint("Vertical", 10),
    Sketcher.Constraint("Horizontal", 12),
    Sketcher.Constraint("Vertical", 14),
    Sketcher.Constraint("Equal", 1, 3),
    Sketcher.Constraint("Equal", 3, 5),
    Sketcher.Constraint("Equal", 5, 7),
    Sketcher.Constraint("Equal", 9, 11),
    Sketcher.Constraint("Equal", 11, 13),
    Sketcher.Constraint("Equal", 13, 15),
    Sketcher.Constraint("Symmetric", 1, 3, 5, 3, -1, 1),
    Sketcher.Constraint("Symmetric", 9, 3, 13, 3, -1, 1),
    Sketcher.Constraint("Equal", 6, 0),
    Sketcher.Constraint("Equal", 12, 10),
    Sketcher.Constraint("Radius", 1, 1.905),
    Sketcher.Constraint("DistanceX", 2, 1, 2, 2, 34.29),
    Sketcher.Constraint("Radius", 9, 1.6002),
    Sketcher.Constraint("DistanceX", 8, 1, 8, 2, 28.8036),
])
sketch8.setExpression("Constraints[35]", "Params.sketch8_width")
pad3 = body.newObject("PartDesign::Pad", "Pad002")
pad3.Profile = sketch8
pad3.setExpression("Length", "Params.pad3_length")

# Sketch on XY plane
sketch9 = body.newObject("Sketcher::SketchObject", "Sketch008")
sketch9.AttachmentSupport = (doc.getObject("XY_Plane"), [""])
sketch9.MapMode = "FlatFace"
sketch9.AttachmentOffset = App.Placement(App.Vector(0, 0, -16.002), App.Rotation())
sketch9.addGeometry([
    Part.Circle(App.Vector(-229, -6.8, 0), App.Vector(0, 0, 1), 4),
    Part.Circle(App.Vector(-229, 7, 0), App.Vector(0, 0, 1), 4),
    Part.Circle(App.Vector(-184, 7, 0), App.Vector(0, 0, 1), 4),
    Part.Circle(App.Vector(-184, -6.8, 0), App.Vector(0, 0, 1), 4),
], False)
sketch9.addConstraint([
    Sketcher.Constraint("Equal", 0, 1),
    Sketcher.Constraint("Equal", 1, 2),
    Sketcher.Constraint("Equal", 2, 3),
    Sketcher.Constraint("Horizontal", 1, 3, 2, 3),
    Sketcher.Constraint("Horizontal", 0, 3, 3, 3),
    Sketcher.Constraint("Vertical", 0, 3, 1, 3),
    Sketcher.Constraint("Vertical", 2, 3, 3, 3),
    Sketcher.Constraint("Diameter", 0, 8.0),
    Sketcher.Constraint("DistanceX", 0, 3, -1, 1, 229.0),
    Sketcher.Constraint("DistanceX", 2, 3, -1, 1, 184.0),
    Sketcher.Constraint("DistanceY", 0, 3, -1, 1, 6.8),
    Sketcher.Constraint("DistanceY", -1, 1, 1, 3, 6.95),
])
sketch9.setExpression("Constraints[7]", "Params.sketch9_diameter")
doc.recompute()
hole4 = body.newObject("PartDesign::Hole", "Hole003")
hole4.Profile = sketch9
hole4.ThreadType = "None"
hole4.setExpression("Diameter", "Params.hole4_diameter")
hole4.DepthType = "Dimension"
hole4.setExpression("Depth", "Params.hole4_depth")
hole4.DrillPoint = "Flat"

# Sketch on XZ plane
sketch10 = body.newObject("Sketcher::SketchObject", "Sketch009")
sketch10.AttachmentSupport = (doc.getObject("XZ_Plane"), [""])
sketch10.MapMode = "FlatFace"
sketch10.AttachmentOffset = App.Placement(App.Vector(0, 0, 16.002), App.Rotation())
sketch10.addGeometry([
    Part.Circle(App.Vector(-229, -6.8, 0), App.Vector(0, 0, 1), 4),
    Part.Circle(App.Vector(-229, 7, 0), App.Vector(0, 0, 1), 4),
    Part.Circle(App.Vector(-184, 7, 0), App.Vector(0, 0, 1), 4),
    Part.Circle(App.Vector(-184, -6.8, 0), App.Vector(0, 0, 1), 4),
], False)
sketch10.addConstraint([
    Sketcher.Constraint("Equal", 0, 1),
    Sketcher.Constraint("Equal", 1, 2),
    Sketcher.Constraint("Equal", 2, 3),
    Sketcher.Constraint("Horizontal", 1, 3, 2, 3),
    Sketcher.Constraint("Horizontal", 0, 3, 3, 3),
    Sketcher.Constraint("Vertical", 0, 3, 1, 3),
    Sketcher.Constraint("Vertical", 2, 3, 3, 3),
    Sketcher.Constraint("Diameter", 0, 8.0),
    Sketcher.Constraint("DistanceX", 0, 3, -1, 1, 229.0),
    Sketcher.Constraint("DistanceX", 2, 3, -1, 1, 184.0),
    Sketcher.Constraint("DistanceY", 0, 3, -1, 1, 6.8),
    Sketcher.Constraint("DistanceY", -1, 1, 1, 3, 6.95),
])
sketch10.setExpression("Constraints[7]", "Params.sketch10_diameter")
doc.recompute()
hole5 = body.newObject("PartDesign::Hole", "Hole004")
hole5.Profile = sketch10
hole5.ThreadType = "None"
hole5.setExpression("Diameter", "Params.hole5_diameter")
hole5.DepthType = "Dimension"
hole5.setExpression("Depth", "Params.hole5_depth")
hole5.DrillPoint = "Flat"
hole5.Reversed = True

doc.recompute()
